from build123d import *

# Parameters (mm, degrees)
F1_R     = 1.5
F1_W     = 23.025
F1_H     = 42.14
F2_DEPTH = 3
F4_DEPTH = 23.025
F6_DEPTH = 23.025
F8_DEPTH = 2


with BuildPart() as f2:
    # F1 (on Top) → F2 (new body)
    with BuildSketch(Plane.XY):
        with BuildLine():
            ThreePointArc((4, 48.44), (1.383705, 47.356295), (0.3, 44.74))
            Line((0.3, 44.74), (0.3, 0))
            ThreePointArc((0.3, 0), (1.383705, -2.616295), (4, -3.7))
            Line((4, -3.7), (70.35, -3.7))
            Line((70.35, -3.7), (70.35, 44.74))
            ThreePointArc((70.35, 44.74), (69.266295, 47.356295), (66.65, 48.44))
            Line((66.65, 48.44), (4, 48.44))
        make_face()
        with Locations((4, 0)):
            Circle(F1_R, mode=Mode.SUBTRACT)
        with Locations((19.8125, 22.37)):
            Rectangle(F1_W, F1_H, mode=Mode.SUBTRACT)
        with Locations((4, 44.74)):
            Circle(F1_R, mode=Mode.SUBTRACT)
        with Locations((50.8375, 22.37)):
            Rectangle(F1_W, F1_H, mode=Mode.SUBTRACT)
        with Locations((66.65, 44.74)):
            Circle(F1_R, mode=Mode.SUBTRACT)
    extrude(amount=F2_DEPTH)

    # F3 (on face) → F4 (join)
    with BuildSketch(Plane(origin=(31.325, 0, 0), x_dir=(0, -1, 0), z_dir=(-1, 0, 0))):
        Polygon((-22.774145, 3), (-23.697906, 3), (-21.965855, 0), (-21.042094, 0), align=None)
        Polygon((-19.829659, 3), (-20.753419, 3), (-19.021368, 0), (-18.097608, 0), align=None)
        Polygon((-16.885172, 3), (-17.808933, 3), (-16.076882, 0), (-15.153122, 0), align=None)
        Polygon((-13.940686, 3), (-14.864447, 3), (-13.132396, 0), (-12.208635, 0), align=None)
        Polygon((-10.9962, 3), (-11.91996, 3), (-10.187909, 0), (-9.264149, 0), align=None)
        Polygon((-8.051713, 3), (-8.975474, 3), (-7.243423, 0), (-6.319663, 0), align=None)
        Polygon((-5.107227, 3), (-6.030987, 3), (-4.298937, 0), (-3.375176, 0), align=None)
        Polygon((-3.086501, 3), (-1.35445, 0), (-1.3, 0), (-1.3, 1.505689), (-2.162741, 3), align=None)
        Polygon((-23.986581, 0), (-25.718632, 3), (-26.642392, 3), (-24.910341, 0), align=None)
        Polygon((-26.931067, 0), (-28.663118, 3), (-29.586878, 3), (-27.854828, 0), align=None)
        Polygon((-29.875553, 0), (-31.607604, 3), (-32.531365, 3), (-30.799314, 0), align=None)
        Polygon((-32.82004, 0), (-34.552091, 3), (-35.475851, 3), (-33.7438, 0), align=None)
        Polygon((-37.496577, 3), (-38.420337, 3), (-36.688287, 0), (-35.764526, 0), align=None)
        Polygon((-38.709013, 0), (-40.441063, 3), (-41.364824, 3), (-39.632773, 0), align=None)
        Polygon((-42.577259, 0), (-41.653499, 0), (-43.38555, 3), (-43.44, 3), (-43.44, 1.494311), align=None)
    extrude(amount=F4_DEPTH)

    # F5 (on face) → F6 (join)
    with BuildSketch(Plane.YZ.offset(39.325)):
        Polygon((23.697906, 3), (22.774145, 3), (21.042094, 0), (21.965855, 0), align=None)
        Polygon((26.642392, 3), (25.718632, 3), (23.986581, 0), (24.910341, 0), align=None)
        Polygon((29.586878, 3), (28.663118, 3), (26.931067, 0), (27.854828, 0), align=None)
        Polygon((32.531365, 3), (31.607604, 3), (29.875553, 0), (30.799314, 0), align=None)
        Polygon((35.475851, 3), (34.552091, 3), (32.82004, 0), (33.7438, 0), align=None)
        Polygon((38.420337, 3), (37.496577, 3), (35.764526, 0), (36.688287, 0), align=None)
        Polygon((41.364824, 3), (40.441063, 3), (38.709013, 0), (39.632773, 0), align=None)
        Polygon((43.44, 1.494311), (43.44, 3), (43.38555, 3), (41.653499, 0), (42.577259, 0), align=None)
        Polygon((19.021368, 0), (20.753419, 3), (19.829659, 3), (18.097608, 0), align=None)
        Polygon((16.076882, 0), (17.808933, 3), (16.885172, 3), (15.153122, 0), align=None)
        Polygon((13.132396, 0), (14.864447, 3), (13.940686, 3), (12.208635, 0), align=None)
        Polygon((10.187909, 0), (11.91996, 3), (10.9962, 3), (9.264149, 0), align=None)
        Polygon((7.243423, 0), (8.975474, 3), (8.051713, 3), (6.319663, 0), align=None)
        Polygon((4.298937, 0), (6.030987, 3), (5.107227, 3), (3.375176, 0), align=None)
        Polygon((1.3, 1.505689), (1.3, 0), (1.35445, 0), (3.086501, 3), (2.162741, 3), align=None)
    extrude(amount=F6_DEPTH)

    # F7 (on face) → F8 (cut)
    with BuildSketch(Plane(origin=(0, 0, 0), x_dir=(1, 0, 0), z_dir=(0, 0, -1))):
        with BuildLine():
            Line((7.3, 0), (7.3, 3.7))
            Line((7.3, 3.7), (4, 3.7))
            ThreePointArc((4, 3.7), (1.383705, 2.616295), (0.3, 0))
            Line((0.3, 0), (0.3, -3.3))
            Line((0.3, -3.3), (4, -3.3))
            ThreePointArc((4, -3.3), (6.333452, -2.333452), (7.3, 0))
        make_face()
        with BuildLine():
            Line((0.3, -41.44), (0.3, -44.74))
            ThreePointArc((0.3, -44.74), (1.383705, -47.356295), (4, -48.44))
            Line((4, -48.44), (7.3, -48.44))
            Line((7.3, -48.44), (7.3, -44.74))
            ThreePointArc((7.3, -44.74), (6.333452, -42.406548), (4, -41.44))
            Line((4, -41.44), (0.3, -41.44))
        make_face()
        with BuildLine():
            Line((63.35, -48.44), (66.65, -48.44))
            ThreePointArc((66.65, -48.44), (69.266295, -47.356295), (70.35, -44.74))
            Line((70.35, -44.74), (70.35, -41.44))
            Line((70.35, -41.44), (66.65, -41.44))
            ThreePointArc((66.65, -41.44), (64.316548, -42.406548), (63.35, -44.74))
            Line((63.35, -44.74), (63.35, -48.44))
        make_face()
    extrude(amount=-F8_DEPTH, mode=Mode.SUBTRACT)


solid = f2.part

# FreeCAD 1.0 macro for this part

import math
import FreeCAD as App
import Part
import Sketcher
Q = App.Units.Quantity


def add_polygon(sketch, points):
    """Adds a closed chain of lines whose ends are joined by coincident constraints."""
    first, n = sketch.GeometryCount, len(points)
    for a, b in zip(points, points[1:] + points[:1]):
        sketch.addGeometry(Part.LineSegment(App.Vector(*a, 0), App.Vector(*b, 0)), False)
    for i in range(n):
        sketch.addConstraint(Sketcher.Constraint("Coincident", first + i, 2, first + (i + 1) % n, 1))

doc = App.newDocument("Part")
body = doc.addObject("PartDesign::Body", "Body")

# Sketch on XY plane
sketch1 = body.newObject("Sketcher::SketchObject", "Sketch")
sketch1.AttachmentSupport = (doc.getObject("XY_Plane"), [""])
sketch1.MapMode = "FlatFace"
sketch1.addGeometry(Part.ArcOfCircle(Part.Circle(App.Vector(4, 44.74, 0), App.Vector(0, 0, 1), 3.7), math.radians(90.000005), math.radians(179.999995)), False)  # 0
sketch1.addGeometry(Part.LineSegment(App.Vector(0.3, 44.74, 0), App.Vector(0.3, 0, 0)), False)  # 1
sketch1.addGeometry(Part.ArcOfCircle(Part.Circle(App.Vector(4, 0, 0), App.Vector(0, 0, 1), 3.7), math.radians(-179.999995), math.radians(-90.000005)), False)  # 2
sketch1.addGeometry(Part.LineSegment(App.Vector(4, -3.7, 0), App.Vector(70.35, -3.7, 0)), False)  # 3
sketch1.addGeometry(Part.LineSegment(App.Vector(70.35, -3.7, 0), App.Vector(70.35, 44.74, 0)), False)  # 4
sketch1.addGeometry(Part.ArcOfCircle(Part.Circle(App.Vector(66.65, 44.74, 0), App.Vector(0, 0, 1), 3.7), math.radians(0.000005), math.radians(89.999995)), False)  # 5
sketch1.addGeometry(Part.LineSegment(App.Vector(66.65, 48.44, 0), App.Vector(4, 48.44, 0)), False)  # 6
sketch1.addGeometry(Part.Circle(App.Vector(4, 0, 0), App.Vector(0, 0, 1), 1.5), False)  # 7
add_polygon(sketch1, [(31.325, 1.3), (8.3, 1.3), (8.3, 43.44), (31.325, 43.44)])  # lines 8-11
sketch1.addGeometry(Part.Circle(App.Vector(4, 44.74, 0), App.Vector(0, 0, 1), 1.5), False)  # 12
add_polygon(sketch1, [(62.35, 1.3), (39.325, 1.3), (39.325, 43.44), (62.35, 43.44)])  # lines 13-16
sketch1.addGeometry(Part.Circle(App.Vector(66.65, 44.74, 0), App.Vector(0, 0, 1), 1.5), False)  # 17
sketch1.addConstraint([
    Sketcher.Constraint("Tangent", 0, 2, 1, 1),
    Sketcher.Constraint("Tangent", 1, 2, 2, 1),
    Sketcher.Constraint("Tangent", 2, 2, 3, 1),
    Sketcher.Constraint("Coincident", 3, 2, 4, 1),
    Sketcher.Constraint("Tangent", 4, 2, 5, 1),
    Sketcher.Constraint("Tangent", 5, 2, 6, 1),
    Sketcher.Constraint("Tangent", 6, 2, 0, 1),
    Sketcher.Constraint("Vertical", 1),
    Sketcher.Constraint("Horizontal", 3),
    Sketcher.Constraint("Vertical", 4),
    Sketcher.Constraint("Horizontal", 6),
    Sketcher.Constraint("Horizontal", 8),
    Sketcher.Constraint("Vertical", 9),
    Sketcher.Constraint("Horizontal", 10),
    Sketcher.Constraint("Vertical", 11),
    Sketcher.Constraint("Horizontal", 13),
    Sketcher.Constraint("Vertical", 14),
    Sketcher.Constraint("Horizontal", 15),
    Sketcher.Constraint("Vertical", 16),
    Sketcher.Constraint("Coincident", 7, 3, 2, 3),
    Sketcher.Constraint("Coincident", 12, 3, 0, 3),
    Sketcher.Constraint("Coincident", 17, 3, 5, 3),
    Sketcher.Constraint("Equal", 0, 2),
    Sketcher.Constraint("Equal", 2, 5),
    Sketcher.Constraint("Equal", 7, 12),
    Sketcher.Constraint("Equal", 12, 17),
    Sketcher.Constraint("PointOnObject", 2, 3, -1),
    Sketcher.Constraint("Horizontal", 11, 2, 13, 2),
    Sketcher.Constraint("Horizontal", 10, 2, 14, 2),
    Sketcher.Constraint("Equal", 10, 13),
    Sketcher.Constraint("Diameter", 7, Q("3 mm")),
    Sketcher.Constraint("Radius", 0, Q("3.7 mm")),
    Sketcher.Constraint("DistanceX", -1, 1, 0, 3, Q("4 mm")),
    Sketcher.Constraint("DistanceY", 2, 2, 8, 2, Q("5 mm")),
    Sketcher.Constraint("DistanceX", 1, 2, 8, 2, Q("8 mm")),
    Sketcher.Constraint("DistanceY", 9, 2, 6, 2, Q("5 mm")),
    Sketcher.Constraint("DistanceX", 11, 2, 13, 2, Q("8 mm")),
    Sketcher.Constraint("DistanceX", 15, 2, 4, 2, Q("8 mm")),
    Sketcher.Constraint("DistanceX", 3, 1, 3, 2, Q("66.35 mm")),
    Sketcher.Constraint("DistanceY", 1, 2, 1, 1, Q("44.74 mm")),
])
pad1 = body.newObject("PartDesign::Pad", "Pad")
pad1.Profile = sketch1
pad1.Length = 3

# Sketch on YZ plane
sketch2 = body.newObject("Sketcher::SketchObject", "Sketch001")
sketch2.AttachmentSupport = (doc.getObject("YZ_Plane"), [""])
sketch2.MapMode = "FlatFace"
sketch2.AttachmentOffset = App.Placement(App.Vector(0, 0, 31.325), App.Rotation())
add_polygon(sketch2, [(22.774145, 3), (23.697906, 3), (21.965855, 0), (21.042094, 0)])  # lines 0-3
add_polygon(sketch2, [(19.829659, 3), (20.753419, 3), (19.021368, 0), (18.097608, 0)])  # lines 4-7
add_polygon(sketch2, [(16.885172, 3), (17.808933, 3), (16.076882, 0), (15.153122, 0)])  # lines 8-11
add_polygon(sketch2, [(13.940686, 3), (14.864447, 3), (13.132396, 0), (12.208635, 0)])  # lines 12-15
add_polygon(sketch2, [(10.9962, 3), (11.91996, 3), (10.187909, 0), (9.264149, 0)])  # lines 16-19
add_polygon(sketch2, [(8.051713, 3), (8.975474, 3), (7.243423, 0), (6.319663, 0)])  # lines 20-23
add_polygon(sketch2, [(5.107227, 3), (6.030987, 3), (4.298937, 0), (3.375176, 0)])  # lines 24-27
add_polygon(sketch2, [(3.086501, 3), (1.35445, 0), (1.3, 0), (1.3, 1.505689), (2.162741, 3)])  # lines 28-32
add_polygon(sketch2, [(23.986581, 0), (25.718632, 3), (26.642392, 3), (24.910341, 0)])  # lines 33-36
add_polygon(sketch2, [(26.931067, 0), (28.663118, 3), (29.586878, 3), (27.854828, 0)])  # lines 37-40
add_polygon(sketch2, [(29.875553, 0), (31.607604, 3), (32.531365, 3), (30.799314, 0)])  # lines 41-44
add_polygon(sketch2, [(32.82004, 0), (34.552091, 3), (35.475851, 3), (33.7438, 0)])  # lines 45-48
add_polygon(sketch2, [(37.496577, 3), (38.420337, 3), (36.688287, 0), (35.764526, 0)])  # lines 49-52
add_polygon(sketch2, [(38.709013, 0), (40.441063, 3), (41.364824, 3), (39.632773, 0)])  # lines 53-56
add_polygon(sketch2, [(42.577259, 0), (41.653499, 0), (43.38555, 3), (43.44, 3), (43.44, 1.494311)])  # lines 57-61
sketch2.addConstraint([
    Sketcher.Constraint("Horizontal", 0),
    Sketcher.Constraint("Horizontal", 2),
    Sketcher.Constraint("Horizontal", 4),
    Sketcher.Constraint("Horizontal", 6),
    Sketcher.Constraint("Horizontal", 8),
    Sketcher.Constraint("Horizontal", 10),
    Sketcher.Constraint("Horizontal", 12),
    Sketcher.Constraint("Horizontal", 14),
    Sketcher.Constraint("Horizontal", 16),
    Sketcher.Constraint("Horizontal", 18),
    Sketcher.Constraint("Horizontal", 20),
    Sketcher.Constraint("Horizontal", 22),
    Sketcher.Constraint("Horizontal", 24),
    Sketcher.Constraint("Horizontal", 26),
    Sketcher.Constraint("Horizontal", 29),
    Sketcher.Constraint("Vertical", 30),
    Sketcher.Constraint("Horizontal", 32),
    Sketcher.Constraint("Horizontal", 34),
    Sketcher.Constraint("Horizontal", 36),
    Sketcher.Constraint("Horizontal", 38),
    Sketcher.Constraint("Horizontal", 40),
    Sketcher.Constraint("Horizontal", 42),
    Sketcher.Constraint("Horizontal", 44),
    Sketcher.Constraint("Horizontal", 46),
    Sketcher.Constraint("Horizontal", 48),
    Sketcher.Constraint("Horizontal", 49),
    Sketcher.Constraint("Horizontal", 51),
    Sketcher.Constraint("Horizontal", 54),
    Sketcher.Constraint("Horizontal", 56),
    Sketcher.Constraint("Horizontal", 57),
    Sketcher.Constraint("Horizontal", 59),
    Sketcher.Constraint("Vertical", 60),
    Sketcher.Constraint("PointOnObject", 1, 2, -1),
    Sketcher.Constraint("PointOnObject", 5, 2, -1),
    Sketcher.Constraint("PointOnObject", 9, 2, -1),
    Sketcher.Constraint("PointOnObject", 13, 2, -1),
    Sketcher.Constraint("PointOnObject", 17, 2, -1),
    Sketcher.Constraint("PointOnObject", 21, 2, -1),
    Sketcher.Constraint("PointOnObject", 25, 2, -1),
    Sketcher.Constraint("PointOnObject", 28, 2, -1),
    Sketcher.Constraint("PointOnObject", 35, 2, -1),
    Sketcher.Constraint("PointOnObject", 39, 2, -1),
    Sketcher.Constraint("PointOnObject", 43, 2, -1),
    Sketcher.Constraint("PointOnObject", 47, 2, -1),
    Sketcher.Constraint("PointOnObject", 50, 2, -1),
    Sketcher.Constraint("PointOnObject", 55, 2, -1),
    Sketcher.Constraint("PointOnObject", 57, 2, -1),
    Sketcher.Constraint("Parallel", 1, 3),
    Sketcher.Constraint("Parallel", 3, 5),
    Sketcher.Constraint("Parallel", 5, 7),
    Sketcher.Constraint("Parallel", 7, 9),
    Sketcher.Constraint("Parallel", 9, 11),
    Sketcher.Constraint("Parallel", 11, 13),
    Sketcher.Constraint("Parallel", 13, 15),
    Sketcher.Constraint("Parallel", 15, 17),
    Sketcher.Constraint("Parallel", 17, 19),
    Sketcher.Constraint("Parallel", 19, 21),
    Sketcher.Constraint("Parallel", 21, 23),
    Sketcher.Constraint("Parallel", 23, 25),
    Sketcher.Constraint("Parallel", 25, 27),
    Sketcher.Constraint("Parallel", 27, 28),
    Sketcher.Constraint("Parallel", 28, 31),
    Sketcher.Constraint("Parallel", 31, 33),
    Sketcher.Constraint("Parallel", 33, 35),
    Sketcher.Constraint("Parallel", 35, 37),
    Sketcher.Constraint("Parallel", 37, 39),
    Sketcher.Constraint("Parallel", 39, 41),
    Sketcher.Constraint("Parallel", 41, 43),
    Sketcher.Constraint("Parallel", 43, 45),
    Sketcher.Constraint("Parallel", 45, 47),
    Sketcher.Constraint("Parallel", 47, 50),
    Sketcher.Constraint("Parallel", 50, 52),
    Sketcher.Constraint("Parallel", 52, 53),
    Sketcher.Constraint("Parallel", 53, 55),
    Sketcher.Constraint("Parallel", 55, 58),
    Sketcher.Constraint("Parallel", 58, 61),
    Sketcher.Constraint("Horizontal", 3, 2, 4, 2),
    Sketcher.Constraint("Horizontal", 7, 2, 8, 2),
    Sketcher.Constraint("Horizontal", 11, 2, 12, 2),
    Sketcher.Constraint("Horizontal", 15, 2, 16, 2),
    Sketcher.Constraint("Horizontal", 19, 2, 20, 2),
    Sketcher.Constraint("Horizontal", 23, 2, 24, 2),
    Sketcher.Constraint("Horizontal", 27, 2, 31, 2),
    Sketcher.Constraint("Horizontal", 32, 2, 33, 2),
    Sketcher.Constraint("Horizontal", 34, 2, 37, 2),
    Sketcher.Constraint("Horizontal", 38, 2, 41, 2),
    Sketcher.Constraint("Horizontal", 42, 2, 45, 2),
    Sketcher.Constraint("Horizontal", 46, 2, 49, 2),
    Sketcher.Constraint("Horizontal", 52, 2, 53, 2),
    Sketcher.Constraint("Horizontal", 54, 2, 58, 2),
    Sketcher.Constraint("Equal", 2, 4),
    Sketcher.Constraint("Equal", 6, 8),
    Sketcher.Constraint("Equal", 10, 12),
    Sketcher.Constraint("Equal", 14, 16),
    Sketcher.Constraint("Equal", 18, 20),
    Sketcher.Constraint("Equal", 22, 24),
    Sketcher.Constraint("Equal", 26, 32),
    Sketcher.Constraint("Equal", 32, 34),
    Sketcher.Constraint("Equal", 36, 38),
    Sketcher.Constraint("Equal", 40, 42),
    Sketcher.Constraint("Equal", 44, 46),
    Sketcher.Constraint("Equal", 48, 49),
    Sketcher.Constraint("Equal", 51, 54),
    Sketcher.Constraint("Equal", 56, 57),
    Sketcher.Constraint("Equal", 29, 59),
    Sketcher.Constraint("Angle", 1, Q("-120.000003 deg")),
    Sketcher.Constraint("DistanceY", -1, 1, 0, 2, Q("3 mm")),
    Sketcher.Constraint("DistanceX", -1, 1, 29, 2, Q("1.3 mm")),
    Sketcher.Constraint("DistanceX", -1, 1, 59, 2, Q("43.44 mm")),
    Sketcher.Constraint("DistanceX", 0, 1, 0, 2, Q("0.923761 mm")),
    Sketcher.Constraint("DistanceX", 29, 2, 29, 1, Q("0.05445 mm")),
    Sketcher.Constraint("DistanceX", -1, 1, 19, 2, Q("10.9962 mm")),
    Sketcher.Constraint("DistanceX", -1, 1, 47, 2, Q("33.7438 mm")),
    Sketcher.Constraint("DistanceX", -1, 1, 4, 2, Q("20.753419 mm")),
    Sketcher.Constraint("DistanceX", -1, 1, 33, 2, Q("25.718632 mm")),
    Sketcher.Constraint("DistanceX", -1, 1, 37, 2, Q("28.663118 mm")),
    Sketcher.Constraint("DistanceX", -1, 1, 0, 2, Q("23.697906 mm")),
    Sketcher.Constraint("DistanceX", -1, 1, 8, 2, Q("17.808933 mm")),
    Sketcher.Constraint("DistanceX", -1, 1, 12, 2, Q("14.864447 mm")),
    Sketcher.Constraint("DistanceX", -1, 1, 20, 2, Q("8.975474 mm")),
    Sketcher.Constraint("DistanceX", -1, 1, 24, 2, Q("6.030987 mm")),
    Sketcher.Constraint("DistanceX", -1, 1, 41, 2, Q("31.607604 mm")),
    Sketcher.Constraint("DistanceX", -1, 1, 49, 2, Q("38.420337 mm")),
    Sketcher.Constraint("DistanceX", -1, 1, 53, 2, Q("40.441063 mm")),
])
pad2 = body.newObject("PartDesign::Pad", "Pad001")
pad2.Profile = sketch2
pad2.Length = 23.025
pad2.Reversed = True

# Sketch on YZ plane
sketch3 = body.newObject("Sketcher::SketchObject", "Sketch002")
sketch3.AttachmentSupport = (doc.getObject("YZ_Plane"), [""])
sketch3.MapMode = "FlatFace"
sketch3.AttachmentOffset = App.Placement(App.Vector(0, 0, 39.325), App.Rotation())
add_polygon(sketch3, [(23.697906, 3), (22.774145, 3), (21.042094, 0), (21.965855, 0)])  # lines 0-3
add_polygon(sketch3, [(26.642392, 3), (25.718632, 3), (23.986581, 0), (24.910341, 0)])  # lines 4-7
add_polygon(sketch3, [(29.586878, 3), (28.663118, 3), (26.931067, 0), (27.854828, 0)])  # lines 8-11
add_polygon(sketch3, [(32.531365, 3), (31.607604, 3), (29.875553, 0), (30.799314, 0)])  # lines 12-15
add_polygon(sketch3, [(35.475851, 3), (34.552091, 3), (32.82004, 0), (33.7438, 0)])  # lines 16-19
add_polygon(sketch3, [(38.420337, 3), (37.496577, 3), (35.764526, 0), (36.688287, 0)])  # lines 20-23
add_polygon(sketch3, [(41.364824, 3), (40.441063, 3), (38.709013, 0), (39.632773, 0)])  # lines 24-27
add_polygon(sketch3, [(43.44, 1.494311), (43.44, 3), (43.38555, 3), (41.653499, 0), (42.577259, 0)])  # lines 28-32
add_polygon(sketch3, [(19.021368, 0), (20.753419, 3), (19.829659, 3), (18.097608, 0)])  # lines 33-36
add_polygon(sketch3, [(16.076882, 0), (17.808933, 3), (16.885172, 3), (15.153122, 0)])  # lines 37-40
add_polygon(sketch3, [(13.132396, 0), (14.864447, 3), (13.940686, 3), (12.208635, 0)])  # lines 41-44
add_polygon(sketch3, [(10.187909, 0), (11.91996, 3), (10.9962, 3), (9.264149, 0)])  # lines 45-48
add_polygon(sketch3, [(7.243423, 0), (8.975474, 3), (8.051713, 3), (6.319663, 0)])  # lines 49-52
add_polygon(sketch3, [(4.298937, 0), (6.030987, 3), (5.107227, 3), (3.375176, 0)])  # lines 53-56
add_polygon(sketch3, [(1.3, 1.505689), (1.3, 0), (1.35445, 0), (3.086501, 3), (2.162741, 3)])  # lines 57-61
sketch3.addConstraint([
    Sketcher.Constraint("Horizontal", 0),
    Sketcher.Constraint("Horizontal", 2),
    Sketcher.Constraint("Horizontal", 4),
    Sketcher.Constraint("Horizontal", 6),
    Sketcher.Constraint("Horizontal", 8),
    Sketcher.Constraint("Horizontal", 10),
    Sketcher.Constraint("Horizontal", 12),
    Sketcher.Constraint("Horizontal", 14),
    Sketcher.Constraint("Horizontal", 16),
    Sketcher.Constraint("Horizontal", 18),
    Sketcher.Constraint("Horizontal", 20),
    Sketcher.Constraint("Horizontal", 22),
    Sketcher.Constraint("Horizontal", 24),
    Sketcher.Constraint("Horizontal", 26),
    Sketcher.Constraint("Vertical", 28),
    Sketcher.Constraint("Horizontal", 29),
    Sketcher.Constraint("Horizontal", 31),
    Sketcher.Constraint("Horizontal", 34),
    Sketcher.Constraint("Horizontal", 36),
    Sketcher.Constraint("Horizontal", 38),
    Sketcher.Constraint("Horizontal", 40),
    Sketcher.Constraint("Horizontal", 42),
    Sketcher.Constraint("Horizontal", 44),
    Sketcher.Constraint("Horizontal", 46),
    Sketcher.Constraint("Horizontal", 48),
    Sketcher.Constraint("Horizontal", 50),
    Sketcher.Constraint("Horizontal", 52),
    Sketcher.Constraint("Horizontal", 54),
    Sketcher.Constraint("Horizontal", 56),
    Sketcher.Constraint("Vertical", 57),
    Sketcher.Constraint("Horizontal", 58),
    Sketcher.Constraint("Horizontal", 60),
    Sketcher.Constraint("PointOnObject", 1, 2, -1),
    Sketcher.Constraint("PointOnObject", 5, 2, -1),
    Sketcher.Constraint("PointOnObject", 9, 2, -1),
    Sketcher.Constraint("PointOnObject", 13, 2, -1),
    Sketcher.Constraint("PointOnObject", 17, 2, -1),
    Sketcher.Constraint("PointOnObject", 21, 2, -1),
    Sketcher.Constraint("PointOnObject", 25, 2, -1),
    Sketcher.Constraint("PointOnObject", 30, 2, -1),
    Sketcher.Constraint("PointOnObject", 35, 2, -1),
    Sketcher.Constraint("PointOnObject", 39, 2, -1),
    Sketcher.Constraint("PointOnObject", 43, 2, -1),
    Sketcher.Constraint("PointOnObject", 47, 2, -1),
    Sketcher.Constraint("PointOnObject", 51, 2, -1),
    Sketcher.Constraint("PointOnObject", 55, 2, -1),
    Sketcher.Constraint("PointOnObject", 57, 2, -1),
    Sketcher.Constraint("Parallel", 1, 3),
    Sketcher.Constraint("Parallel", 3, 5),
    Sketcher.Constraint("Parallel", 5, 7),
    Sketcher.Constraint("Parallel", 7, 9),
    Sketcher.Constraint("Parallel", 9, 11),
    Sketcher.Constraint("Parallel", 11, 13),
    Sketcher.Constraint("Parallel", 13, 15),
    Sketcher.Constraint("Parallel", 15, 17),
    Sketcher.Constraint("Parallel", 17, 19),
    Sketcher.Constraint("Parallel", 19, 21),
    Sketcher.Constraint("Parallel", 21, 23),
    Sketcher.Constraint("Parallel", 23, 25),
    Sketcher.Constraint("Parallel", 25, 27),
    Sketcher.Constraint("Parallel", 27, 30),
    Sketcher.Constraint("Parallel", 30, 32),
    Sketcher.Constraint("Parallel", 32, 33),
    Sketcher.Constraint("Parallel", 33, 35),
    Sketcher.Constraint("Parallel", 35, 37),
    Sketcher.Constraint("Parallel", 37, 39),
    Sketcher.Constraint("Parallel", 39, 41),
    Sketcher.Constraint("Parallel", 41, 43),
    Sketcher.Constraint("Parallel", 43, 45),
    Sketcher.Constraint("Parallel", 45, 47),
    Sketcher.Constraint("Parallel", 47, 49),
    Sketcher.Constraint("Parallel", 49, 51),
    Sketcher.Constraint("Parallel", 51, 53),
    Sketcher.Constraint("Parallel", 53, 55),
    Sketcher.Constraint("Parallel", 55, 59),
    Sketcher.Constraint("Parallel", 59, 61),
    Sketcher.Constraint("Horizontal", 3, 2, 4, 2),
    Sketcher.Constraint("Horizontal", 7, 2, 8, 2),
    Sketcher.Constraint("Horizontal", 11, 2, 12, 2),
    Sketcher.Constraint("Horizontal", 15, 2, 16, 2),
    Sketcher.Constraint("Horizontal", 19, 2, 20, 2),
    Sketcher.Constraint("Horizontal", 23, 2, 24, 2),
    Sketcher.Constraint("Horizontal", 27, 2, 28, 2),
    Sketcher.Constraint("Horizontal", 29, 2, 33, 2),
    Sketcher.Constraint("Horizontal", 34, 2, 37, 2),
    Sketcher.Constraint("Horizontal", 38, 2, 41, 2),
    Sketcher.Constraint("Horizontal", 42, 2, 45, 2),
    Sketcher.Constraint("Horizontal", 46, 2, 49, 2),
    Sketcher.Constraint("Horizontal", 50, 2, 53, 2),
    Sketcher.Constraint("Horizontal", 54, 2, 59, 2),
    Sketcher.Constraint("Equal", 2, 4),
    Sketcher.Constraint("Equal", 6, 8),
    Sketcher.Constraint("Equal", 10, 12),
    Sketcher.Constraint("Equal", 14, 16),
    Sketcher.Constraint("Equal", 18, 20),
    Sketcher.Constraint("Equal", 22, 24),
    Sketcher.Constraint("Equal", 26, 31),
    Sketcher.Constraint("Equal", 31, 34),
    Sketcher.Constraint("Equal", 36, 38),
    Sketcher.Constraint("Equal", 40, 42),
    Sketcher.Constraint("Equal", 44, 46),
    Sketcher.Constraint("Equal", 48, 50),
    Sketcher.Constraint("Equal", 52, 54),
    Sketcher.Constraint("Equal", 29, 58),
    Sketcher.Constraint("Equal", 56, 60),
    Sketcher.Constraint("Angle", 1, Q("-120.000003 deg")),
    Sketcher.Constraint("DistanceY", -1, 1, 0, 2, Q("3 mm")),
    Sketcher.Constraint("DistanceX", -1, 1, 57, 2, Q("1.3 mm")),
    Sketcher.Constraint("DistanceX", -1, 1, 28, 2, Q("43.44 mm")),
    Sketcher.Constraint("DistanceX", 0, 2, 0, 1, Q("0.923761 mm")),
    Sketcher.Constraint("DistanceX", 29, 2, 29, 1, Q("0.05445 mm")),
    Sketcher.Constraint("DistanceX", -1, 1, 18, 2, Q("33.7438 mm")),
    Sketcher.Constraint("DistanceX", -1, 1, 46, 2, Q("10.9962 mm")),
    Sketcher.Constraint("DistanceX", -1, 1, 4, 2, Q("25.718632 mm")),
    Sketcher.Constraint("DistanceX", -1, 1, 8, 2, Q("28.663118 mm")),
    Sketcher.Constraint("DistanceX", -1, 1, 33, 2, Q("20.753419 mm")),
    Sketcher.Constraint("DistanceX", -1, 1, 0, 2, Q("22.774145 mm")),
    Sketcher.Constraint("DistanceX", -1, 1, 12, 2, Q("31.607604 mm")),
    Sketcher.Constraint("DistanceX", -1, 1, 20, 2, Q("37.496577 mm")),
    Sketcher.Constraint("DistanceX", -1, 1, 24, 2, Q("40.441063 mm")),
    Sketcher.Constraint("DistanceX", -1, 1, 37, 2, Q("17.808933 mm")),
    Sketcher.Constraint("DistanceX", -1, 1, 41, 2, Q("14.864447 mm")),
    Sketcher.Constraint("DistanceX", -1, 1, 49, 2, Q("8.975474 mm")),
    Sketcher.Constraint("DistanceX", -1, 1, 53, 2, Q("6.030987 mm")),
])
pad3 = body.newObject("PartDesign::Pad", "Pad002")
pad3.Profile = sketch3
pad3.Length = 23.025

# Sketch on XY plane
sketch4 = body.newObject("Sketcher::SketchObject", "Sketch003")
sketch4.AttachmentSupport = (doc.getObject("XY_Plane"), [""])
sketch4.MapMode = "FlatFace"
sketch4.addGeometry([
    Part.LineSegment(App.Vector(7.3, 0, 0), App.Vector(7.3, -3.7, 0)),  # 0
    Part.LineSegment(App.Vector(7.3, -3.7, 0), App.Vector(4, -3.7, 0)),  # 1
    Part.ArcOfCircle(Part.Circle(App.Vector(4, 0, 0), App.Vector(0, 0, 1), 3.7), math.radians(-179.999995), math.radians(-90.000005)),  # 2
    Part.LineSegment(App.Vector(0.3, 0, 0), App.Vector(0.3, 3.3, 0)),  # 3
    Part.LineSegment(App.Vector(0.3, 3.3, 0), App.Vector(4, 3.3, 0)),  # 4
    Part.ArcOfCircle(Part.Circle(App.Vector(3.999999, -0.000001, 0), App.Vector(0, 0, 1), 3.300001), math.radians(0.000022), math.radians(89.999978)),  # 5
    Part.LineSegment(App.Vector(0.3, 41.44, 0), App.Vector(0.3, 44.74, 0)),  # 6
    Part.ArcOfCircle(Part.Circle(App.Vector(4, 44.74, 0), App.Vector(0, 0, 1), 3.7), math.radians(90.000005), math.radians(179.999995)),  # 7
    Part.LineSegment(App.Vector(4, 48.44, 0), App.Vector(7.3, 48.44, 0)),  # 8
    Part.LineSegment(App.Vector(7.3, 48.44, 0), App.Vector(7.3, 44.74, 0)),  # 9
    Part.ArcOfCircle(Part.Circle(App.Vector(3.999999, 44.740001, 0), App.Vector(0, 0, 1), 3.300001), math.radians(-89.999978), math.radians(-0.000022)),  # 10
    Part.LineSegment(App.Vector(4, 41.44, 0), App.Vector(0.3, 41.44, 0)),  # 11
    Part.LineSegment(App.Vector(63.35, 48.44, 0), App.Vector(66.65, 48.44, 0)),  # 12
    Part.ArcOfCircle(Part.Circle(App.Vector(66.65, 44.74, 0), App.Vector(0, 0, 1), 3.7), math.radians(0.000005), math.radians(89.999995)),  # 13
    Part.LineSegment(App.Vector(70.35, 44.74, 0), App.Vector(70.35, 41.44, 0)),  # 14
    Part.LineSegment(App.Vector(70.35, 41.44, 0), App.Vector(66.65, 41.44, 0)),  # 15
    Part.ArcOfCircle(Part.Circle(App.Vector(66.650001, 44.740001, 0), App.Vector(0, 0, 1), 3.300001), math.radians(-179.999978), math.radians(-90.000022)),  # 16
    Part.LineSegment(App.Vector(63.35, 44.74, 0), App.Vector(63.35, 48.44, 0)),  # 17
], False)
sketch4.addConstraint([
    Sketcher.Constraint("Coincident", 0, 2, 1, 1),
    Sketcher.Constraint("Tangent", 1, 2, 2, 2),
    Sketcher.Constraint("Tangent", 2, 1, 3, 1),
    Sketcher.Constraint("Coincident", 3, 2, 4, 1),
    Sketcher.Constraint("Tangent", 4, 2, 5, 2),
    Sketcher.Constraint("Tangent", 5, 1, 0, 1),
    Sketcher.Constraint("Tangent", 6, 2, 7, 2),
    Sketcher.Constraint("Tangent", 7, 1, 8, 1),
    Sketcher.Constraint("Coincident", 8, 2, 9, 1),
    Sketcher.Constraint("Tangent", 9, 2, 10, 2),
    Sketcher.Constraint("Tangent", 10, 1, 11, 1),
    Sketcher.Constraint("Coincident", 11, 2, 6, 1),
    Sketcher.Constraint("Tangent", 12, 2, 13, 2),
    Sketcher.Constraint("Tangent", 13, 1, 14, 1),
    Sketcher.Constraint("Coincident", 14, 2, 15, 1),
    Sketcher.Constraint("Tangent", 15, 2, 16, 2),
    Sketcher.Constraint("Tangent", 16, 1, 17, 1),
    Sketcher.Constraint("Coincident", 17, 2, 12, 1),
    Sketcher.Constraint("Vertical", 0),
    Sketcher.Constraint("Horizontal", 1),
    Sketcher.Constraint("Vertical", 3),
    Sketcher.Constraint("Horizontal", 4),
    Sketcher.Constraint("Vertical", 6),
    Sketcher.Constraint("Horizontal", 8),
    Sketcher.Constraint("Vertical", 9),
    Sketcher.Constraint("Horizontal", 11),
    Sketcher.Constraint("Horizontal", 12),
    Sketcher.Constraint("Vertical", 14),
    Sketcher.Constraint("Horizontal", 15),
    Sketcher.Constraint("Vertical", 17),
    Sketcher.Constraint("Coincident", 5, 3, 2, 3),
    Sketcher.Constraint("Coincident", 10, 3, 7, 3),
    Sketcher.Constraint("Coincident", 16, 3, 13, 3),
    Sketcher.Constraint("Equal", 2, 7),
    Sketcher.Constraint("Equal", 5, 10),
    Sketcher.Constraint("Equal", 7, 13),
    Sketcher.Constraint("Equal", 10, 16),
    Sketcher.Constraint("PointOnObject", 2, 3, -1),
    Sketcher.Constraint("Horizontal", 10, 3, 13, 3),
    Sketcher.Constraint("Vertical", 5, 3, 7, 3),
    Sketcher.Constraint("Radius", 2, Q("3.7 mm")),
    Sketcher.Constraint("Radius", 5, Q("3.300001 mm")),
    Sketcher.Constraint("DistanceX", -1, 1, 2, 3, Q("4 mm")),
    Sketcher.Constraint("DistanceY", -1, 1, 7, 3, Q("44.74 mm")),
    Sketcher.Constraint("DistanceX", -1, 1, 13, 3, Q("66.65 mm")),
])
pocket1 = body.newObject("PartDesign::Pocket", "Pocket")
pocket1.Profile = sketch4
pocket1.Length = 2
pocket1.Reversed = True

doc.recompute()
